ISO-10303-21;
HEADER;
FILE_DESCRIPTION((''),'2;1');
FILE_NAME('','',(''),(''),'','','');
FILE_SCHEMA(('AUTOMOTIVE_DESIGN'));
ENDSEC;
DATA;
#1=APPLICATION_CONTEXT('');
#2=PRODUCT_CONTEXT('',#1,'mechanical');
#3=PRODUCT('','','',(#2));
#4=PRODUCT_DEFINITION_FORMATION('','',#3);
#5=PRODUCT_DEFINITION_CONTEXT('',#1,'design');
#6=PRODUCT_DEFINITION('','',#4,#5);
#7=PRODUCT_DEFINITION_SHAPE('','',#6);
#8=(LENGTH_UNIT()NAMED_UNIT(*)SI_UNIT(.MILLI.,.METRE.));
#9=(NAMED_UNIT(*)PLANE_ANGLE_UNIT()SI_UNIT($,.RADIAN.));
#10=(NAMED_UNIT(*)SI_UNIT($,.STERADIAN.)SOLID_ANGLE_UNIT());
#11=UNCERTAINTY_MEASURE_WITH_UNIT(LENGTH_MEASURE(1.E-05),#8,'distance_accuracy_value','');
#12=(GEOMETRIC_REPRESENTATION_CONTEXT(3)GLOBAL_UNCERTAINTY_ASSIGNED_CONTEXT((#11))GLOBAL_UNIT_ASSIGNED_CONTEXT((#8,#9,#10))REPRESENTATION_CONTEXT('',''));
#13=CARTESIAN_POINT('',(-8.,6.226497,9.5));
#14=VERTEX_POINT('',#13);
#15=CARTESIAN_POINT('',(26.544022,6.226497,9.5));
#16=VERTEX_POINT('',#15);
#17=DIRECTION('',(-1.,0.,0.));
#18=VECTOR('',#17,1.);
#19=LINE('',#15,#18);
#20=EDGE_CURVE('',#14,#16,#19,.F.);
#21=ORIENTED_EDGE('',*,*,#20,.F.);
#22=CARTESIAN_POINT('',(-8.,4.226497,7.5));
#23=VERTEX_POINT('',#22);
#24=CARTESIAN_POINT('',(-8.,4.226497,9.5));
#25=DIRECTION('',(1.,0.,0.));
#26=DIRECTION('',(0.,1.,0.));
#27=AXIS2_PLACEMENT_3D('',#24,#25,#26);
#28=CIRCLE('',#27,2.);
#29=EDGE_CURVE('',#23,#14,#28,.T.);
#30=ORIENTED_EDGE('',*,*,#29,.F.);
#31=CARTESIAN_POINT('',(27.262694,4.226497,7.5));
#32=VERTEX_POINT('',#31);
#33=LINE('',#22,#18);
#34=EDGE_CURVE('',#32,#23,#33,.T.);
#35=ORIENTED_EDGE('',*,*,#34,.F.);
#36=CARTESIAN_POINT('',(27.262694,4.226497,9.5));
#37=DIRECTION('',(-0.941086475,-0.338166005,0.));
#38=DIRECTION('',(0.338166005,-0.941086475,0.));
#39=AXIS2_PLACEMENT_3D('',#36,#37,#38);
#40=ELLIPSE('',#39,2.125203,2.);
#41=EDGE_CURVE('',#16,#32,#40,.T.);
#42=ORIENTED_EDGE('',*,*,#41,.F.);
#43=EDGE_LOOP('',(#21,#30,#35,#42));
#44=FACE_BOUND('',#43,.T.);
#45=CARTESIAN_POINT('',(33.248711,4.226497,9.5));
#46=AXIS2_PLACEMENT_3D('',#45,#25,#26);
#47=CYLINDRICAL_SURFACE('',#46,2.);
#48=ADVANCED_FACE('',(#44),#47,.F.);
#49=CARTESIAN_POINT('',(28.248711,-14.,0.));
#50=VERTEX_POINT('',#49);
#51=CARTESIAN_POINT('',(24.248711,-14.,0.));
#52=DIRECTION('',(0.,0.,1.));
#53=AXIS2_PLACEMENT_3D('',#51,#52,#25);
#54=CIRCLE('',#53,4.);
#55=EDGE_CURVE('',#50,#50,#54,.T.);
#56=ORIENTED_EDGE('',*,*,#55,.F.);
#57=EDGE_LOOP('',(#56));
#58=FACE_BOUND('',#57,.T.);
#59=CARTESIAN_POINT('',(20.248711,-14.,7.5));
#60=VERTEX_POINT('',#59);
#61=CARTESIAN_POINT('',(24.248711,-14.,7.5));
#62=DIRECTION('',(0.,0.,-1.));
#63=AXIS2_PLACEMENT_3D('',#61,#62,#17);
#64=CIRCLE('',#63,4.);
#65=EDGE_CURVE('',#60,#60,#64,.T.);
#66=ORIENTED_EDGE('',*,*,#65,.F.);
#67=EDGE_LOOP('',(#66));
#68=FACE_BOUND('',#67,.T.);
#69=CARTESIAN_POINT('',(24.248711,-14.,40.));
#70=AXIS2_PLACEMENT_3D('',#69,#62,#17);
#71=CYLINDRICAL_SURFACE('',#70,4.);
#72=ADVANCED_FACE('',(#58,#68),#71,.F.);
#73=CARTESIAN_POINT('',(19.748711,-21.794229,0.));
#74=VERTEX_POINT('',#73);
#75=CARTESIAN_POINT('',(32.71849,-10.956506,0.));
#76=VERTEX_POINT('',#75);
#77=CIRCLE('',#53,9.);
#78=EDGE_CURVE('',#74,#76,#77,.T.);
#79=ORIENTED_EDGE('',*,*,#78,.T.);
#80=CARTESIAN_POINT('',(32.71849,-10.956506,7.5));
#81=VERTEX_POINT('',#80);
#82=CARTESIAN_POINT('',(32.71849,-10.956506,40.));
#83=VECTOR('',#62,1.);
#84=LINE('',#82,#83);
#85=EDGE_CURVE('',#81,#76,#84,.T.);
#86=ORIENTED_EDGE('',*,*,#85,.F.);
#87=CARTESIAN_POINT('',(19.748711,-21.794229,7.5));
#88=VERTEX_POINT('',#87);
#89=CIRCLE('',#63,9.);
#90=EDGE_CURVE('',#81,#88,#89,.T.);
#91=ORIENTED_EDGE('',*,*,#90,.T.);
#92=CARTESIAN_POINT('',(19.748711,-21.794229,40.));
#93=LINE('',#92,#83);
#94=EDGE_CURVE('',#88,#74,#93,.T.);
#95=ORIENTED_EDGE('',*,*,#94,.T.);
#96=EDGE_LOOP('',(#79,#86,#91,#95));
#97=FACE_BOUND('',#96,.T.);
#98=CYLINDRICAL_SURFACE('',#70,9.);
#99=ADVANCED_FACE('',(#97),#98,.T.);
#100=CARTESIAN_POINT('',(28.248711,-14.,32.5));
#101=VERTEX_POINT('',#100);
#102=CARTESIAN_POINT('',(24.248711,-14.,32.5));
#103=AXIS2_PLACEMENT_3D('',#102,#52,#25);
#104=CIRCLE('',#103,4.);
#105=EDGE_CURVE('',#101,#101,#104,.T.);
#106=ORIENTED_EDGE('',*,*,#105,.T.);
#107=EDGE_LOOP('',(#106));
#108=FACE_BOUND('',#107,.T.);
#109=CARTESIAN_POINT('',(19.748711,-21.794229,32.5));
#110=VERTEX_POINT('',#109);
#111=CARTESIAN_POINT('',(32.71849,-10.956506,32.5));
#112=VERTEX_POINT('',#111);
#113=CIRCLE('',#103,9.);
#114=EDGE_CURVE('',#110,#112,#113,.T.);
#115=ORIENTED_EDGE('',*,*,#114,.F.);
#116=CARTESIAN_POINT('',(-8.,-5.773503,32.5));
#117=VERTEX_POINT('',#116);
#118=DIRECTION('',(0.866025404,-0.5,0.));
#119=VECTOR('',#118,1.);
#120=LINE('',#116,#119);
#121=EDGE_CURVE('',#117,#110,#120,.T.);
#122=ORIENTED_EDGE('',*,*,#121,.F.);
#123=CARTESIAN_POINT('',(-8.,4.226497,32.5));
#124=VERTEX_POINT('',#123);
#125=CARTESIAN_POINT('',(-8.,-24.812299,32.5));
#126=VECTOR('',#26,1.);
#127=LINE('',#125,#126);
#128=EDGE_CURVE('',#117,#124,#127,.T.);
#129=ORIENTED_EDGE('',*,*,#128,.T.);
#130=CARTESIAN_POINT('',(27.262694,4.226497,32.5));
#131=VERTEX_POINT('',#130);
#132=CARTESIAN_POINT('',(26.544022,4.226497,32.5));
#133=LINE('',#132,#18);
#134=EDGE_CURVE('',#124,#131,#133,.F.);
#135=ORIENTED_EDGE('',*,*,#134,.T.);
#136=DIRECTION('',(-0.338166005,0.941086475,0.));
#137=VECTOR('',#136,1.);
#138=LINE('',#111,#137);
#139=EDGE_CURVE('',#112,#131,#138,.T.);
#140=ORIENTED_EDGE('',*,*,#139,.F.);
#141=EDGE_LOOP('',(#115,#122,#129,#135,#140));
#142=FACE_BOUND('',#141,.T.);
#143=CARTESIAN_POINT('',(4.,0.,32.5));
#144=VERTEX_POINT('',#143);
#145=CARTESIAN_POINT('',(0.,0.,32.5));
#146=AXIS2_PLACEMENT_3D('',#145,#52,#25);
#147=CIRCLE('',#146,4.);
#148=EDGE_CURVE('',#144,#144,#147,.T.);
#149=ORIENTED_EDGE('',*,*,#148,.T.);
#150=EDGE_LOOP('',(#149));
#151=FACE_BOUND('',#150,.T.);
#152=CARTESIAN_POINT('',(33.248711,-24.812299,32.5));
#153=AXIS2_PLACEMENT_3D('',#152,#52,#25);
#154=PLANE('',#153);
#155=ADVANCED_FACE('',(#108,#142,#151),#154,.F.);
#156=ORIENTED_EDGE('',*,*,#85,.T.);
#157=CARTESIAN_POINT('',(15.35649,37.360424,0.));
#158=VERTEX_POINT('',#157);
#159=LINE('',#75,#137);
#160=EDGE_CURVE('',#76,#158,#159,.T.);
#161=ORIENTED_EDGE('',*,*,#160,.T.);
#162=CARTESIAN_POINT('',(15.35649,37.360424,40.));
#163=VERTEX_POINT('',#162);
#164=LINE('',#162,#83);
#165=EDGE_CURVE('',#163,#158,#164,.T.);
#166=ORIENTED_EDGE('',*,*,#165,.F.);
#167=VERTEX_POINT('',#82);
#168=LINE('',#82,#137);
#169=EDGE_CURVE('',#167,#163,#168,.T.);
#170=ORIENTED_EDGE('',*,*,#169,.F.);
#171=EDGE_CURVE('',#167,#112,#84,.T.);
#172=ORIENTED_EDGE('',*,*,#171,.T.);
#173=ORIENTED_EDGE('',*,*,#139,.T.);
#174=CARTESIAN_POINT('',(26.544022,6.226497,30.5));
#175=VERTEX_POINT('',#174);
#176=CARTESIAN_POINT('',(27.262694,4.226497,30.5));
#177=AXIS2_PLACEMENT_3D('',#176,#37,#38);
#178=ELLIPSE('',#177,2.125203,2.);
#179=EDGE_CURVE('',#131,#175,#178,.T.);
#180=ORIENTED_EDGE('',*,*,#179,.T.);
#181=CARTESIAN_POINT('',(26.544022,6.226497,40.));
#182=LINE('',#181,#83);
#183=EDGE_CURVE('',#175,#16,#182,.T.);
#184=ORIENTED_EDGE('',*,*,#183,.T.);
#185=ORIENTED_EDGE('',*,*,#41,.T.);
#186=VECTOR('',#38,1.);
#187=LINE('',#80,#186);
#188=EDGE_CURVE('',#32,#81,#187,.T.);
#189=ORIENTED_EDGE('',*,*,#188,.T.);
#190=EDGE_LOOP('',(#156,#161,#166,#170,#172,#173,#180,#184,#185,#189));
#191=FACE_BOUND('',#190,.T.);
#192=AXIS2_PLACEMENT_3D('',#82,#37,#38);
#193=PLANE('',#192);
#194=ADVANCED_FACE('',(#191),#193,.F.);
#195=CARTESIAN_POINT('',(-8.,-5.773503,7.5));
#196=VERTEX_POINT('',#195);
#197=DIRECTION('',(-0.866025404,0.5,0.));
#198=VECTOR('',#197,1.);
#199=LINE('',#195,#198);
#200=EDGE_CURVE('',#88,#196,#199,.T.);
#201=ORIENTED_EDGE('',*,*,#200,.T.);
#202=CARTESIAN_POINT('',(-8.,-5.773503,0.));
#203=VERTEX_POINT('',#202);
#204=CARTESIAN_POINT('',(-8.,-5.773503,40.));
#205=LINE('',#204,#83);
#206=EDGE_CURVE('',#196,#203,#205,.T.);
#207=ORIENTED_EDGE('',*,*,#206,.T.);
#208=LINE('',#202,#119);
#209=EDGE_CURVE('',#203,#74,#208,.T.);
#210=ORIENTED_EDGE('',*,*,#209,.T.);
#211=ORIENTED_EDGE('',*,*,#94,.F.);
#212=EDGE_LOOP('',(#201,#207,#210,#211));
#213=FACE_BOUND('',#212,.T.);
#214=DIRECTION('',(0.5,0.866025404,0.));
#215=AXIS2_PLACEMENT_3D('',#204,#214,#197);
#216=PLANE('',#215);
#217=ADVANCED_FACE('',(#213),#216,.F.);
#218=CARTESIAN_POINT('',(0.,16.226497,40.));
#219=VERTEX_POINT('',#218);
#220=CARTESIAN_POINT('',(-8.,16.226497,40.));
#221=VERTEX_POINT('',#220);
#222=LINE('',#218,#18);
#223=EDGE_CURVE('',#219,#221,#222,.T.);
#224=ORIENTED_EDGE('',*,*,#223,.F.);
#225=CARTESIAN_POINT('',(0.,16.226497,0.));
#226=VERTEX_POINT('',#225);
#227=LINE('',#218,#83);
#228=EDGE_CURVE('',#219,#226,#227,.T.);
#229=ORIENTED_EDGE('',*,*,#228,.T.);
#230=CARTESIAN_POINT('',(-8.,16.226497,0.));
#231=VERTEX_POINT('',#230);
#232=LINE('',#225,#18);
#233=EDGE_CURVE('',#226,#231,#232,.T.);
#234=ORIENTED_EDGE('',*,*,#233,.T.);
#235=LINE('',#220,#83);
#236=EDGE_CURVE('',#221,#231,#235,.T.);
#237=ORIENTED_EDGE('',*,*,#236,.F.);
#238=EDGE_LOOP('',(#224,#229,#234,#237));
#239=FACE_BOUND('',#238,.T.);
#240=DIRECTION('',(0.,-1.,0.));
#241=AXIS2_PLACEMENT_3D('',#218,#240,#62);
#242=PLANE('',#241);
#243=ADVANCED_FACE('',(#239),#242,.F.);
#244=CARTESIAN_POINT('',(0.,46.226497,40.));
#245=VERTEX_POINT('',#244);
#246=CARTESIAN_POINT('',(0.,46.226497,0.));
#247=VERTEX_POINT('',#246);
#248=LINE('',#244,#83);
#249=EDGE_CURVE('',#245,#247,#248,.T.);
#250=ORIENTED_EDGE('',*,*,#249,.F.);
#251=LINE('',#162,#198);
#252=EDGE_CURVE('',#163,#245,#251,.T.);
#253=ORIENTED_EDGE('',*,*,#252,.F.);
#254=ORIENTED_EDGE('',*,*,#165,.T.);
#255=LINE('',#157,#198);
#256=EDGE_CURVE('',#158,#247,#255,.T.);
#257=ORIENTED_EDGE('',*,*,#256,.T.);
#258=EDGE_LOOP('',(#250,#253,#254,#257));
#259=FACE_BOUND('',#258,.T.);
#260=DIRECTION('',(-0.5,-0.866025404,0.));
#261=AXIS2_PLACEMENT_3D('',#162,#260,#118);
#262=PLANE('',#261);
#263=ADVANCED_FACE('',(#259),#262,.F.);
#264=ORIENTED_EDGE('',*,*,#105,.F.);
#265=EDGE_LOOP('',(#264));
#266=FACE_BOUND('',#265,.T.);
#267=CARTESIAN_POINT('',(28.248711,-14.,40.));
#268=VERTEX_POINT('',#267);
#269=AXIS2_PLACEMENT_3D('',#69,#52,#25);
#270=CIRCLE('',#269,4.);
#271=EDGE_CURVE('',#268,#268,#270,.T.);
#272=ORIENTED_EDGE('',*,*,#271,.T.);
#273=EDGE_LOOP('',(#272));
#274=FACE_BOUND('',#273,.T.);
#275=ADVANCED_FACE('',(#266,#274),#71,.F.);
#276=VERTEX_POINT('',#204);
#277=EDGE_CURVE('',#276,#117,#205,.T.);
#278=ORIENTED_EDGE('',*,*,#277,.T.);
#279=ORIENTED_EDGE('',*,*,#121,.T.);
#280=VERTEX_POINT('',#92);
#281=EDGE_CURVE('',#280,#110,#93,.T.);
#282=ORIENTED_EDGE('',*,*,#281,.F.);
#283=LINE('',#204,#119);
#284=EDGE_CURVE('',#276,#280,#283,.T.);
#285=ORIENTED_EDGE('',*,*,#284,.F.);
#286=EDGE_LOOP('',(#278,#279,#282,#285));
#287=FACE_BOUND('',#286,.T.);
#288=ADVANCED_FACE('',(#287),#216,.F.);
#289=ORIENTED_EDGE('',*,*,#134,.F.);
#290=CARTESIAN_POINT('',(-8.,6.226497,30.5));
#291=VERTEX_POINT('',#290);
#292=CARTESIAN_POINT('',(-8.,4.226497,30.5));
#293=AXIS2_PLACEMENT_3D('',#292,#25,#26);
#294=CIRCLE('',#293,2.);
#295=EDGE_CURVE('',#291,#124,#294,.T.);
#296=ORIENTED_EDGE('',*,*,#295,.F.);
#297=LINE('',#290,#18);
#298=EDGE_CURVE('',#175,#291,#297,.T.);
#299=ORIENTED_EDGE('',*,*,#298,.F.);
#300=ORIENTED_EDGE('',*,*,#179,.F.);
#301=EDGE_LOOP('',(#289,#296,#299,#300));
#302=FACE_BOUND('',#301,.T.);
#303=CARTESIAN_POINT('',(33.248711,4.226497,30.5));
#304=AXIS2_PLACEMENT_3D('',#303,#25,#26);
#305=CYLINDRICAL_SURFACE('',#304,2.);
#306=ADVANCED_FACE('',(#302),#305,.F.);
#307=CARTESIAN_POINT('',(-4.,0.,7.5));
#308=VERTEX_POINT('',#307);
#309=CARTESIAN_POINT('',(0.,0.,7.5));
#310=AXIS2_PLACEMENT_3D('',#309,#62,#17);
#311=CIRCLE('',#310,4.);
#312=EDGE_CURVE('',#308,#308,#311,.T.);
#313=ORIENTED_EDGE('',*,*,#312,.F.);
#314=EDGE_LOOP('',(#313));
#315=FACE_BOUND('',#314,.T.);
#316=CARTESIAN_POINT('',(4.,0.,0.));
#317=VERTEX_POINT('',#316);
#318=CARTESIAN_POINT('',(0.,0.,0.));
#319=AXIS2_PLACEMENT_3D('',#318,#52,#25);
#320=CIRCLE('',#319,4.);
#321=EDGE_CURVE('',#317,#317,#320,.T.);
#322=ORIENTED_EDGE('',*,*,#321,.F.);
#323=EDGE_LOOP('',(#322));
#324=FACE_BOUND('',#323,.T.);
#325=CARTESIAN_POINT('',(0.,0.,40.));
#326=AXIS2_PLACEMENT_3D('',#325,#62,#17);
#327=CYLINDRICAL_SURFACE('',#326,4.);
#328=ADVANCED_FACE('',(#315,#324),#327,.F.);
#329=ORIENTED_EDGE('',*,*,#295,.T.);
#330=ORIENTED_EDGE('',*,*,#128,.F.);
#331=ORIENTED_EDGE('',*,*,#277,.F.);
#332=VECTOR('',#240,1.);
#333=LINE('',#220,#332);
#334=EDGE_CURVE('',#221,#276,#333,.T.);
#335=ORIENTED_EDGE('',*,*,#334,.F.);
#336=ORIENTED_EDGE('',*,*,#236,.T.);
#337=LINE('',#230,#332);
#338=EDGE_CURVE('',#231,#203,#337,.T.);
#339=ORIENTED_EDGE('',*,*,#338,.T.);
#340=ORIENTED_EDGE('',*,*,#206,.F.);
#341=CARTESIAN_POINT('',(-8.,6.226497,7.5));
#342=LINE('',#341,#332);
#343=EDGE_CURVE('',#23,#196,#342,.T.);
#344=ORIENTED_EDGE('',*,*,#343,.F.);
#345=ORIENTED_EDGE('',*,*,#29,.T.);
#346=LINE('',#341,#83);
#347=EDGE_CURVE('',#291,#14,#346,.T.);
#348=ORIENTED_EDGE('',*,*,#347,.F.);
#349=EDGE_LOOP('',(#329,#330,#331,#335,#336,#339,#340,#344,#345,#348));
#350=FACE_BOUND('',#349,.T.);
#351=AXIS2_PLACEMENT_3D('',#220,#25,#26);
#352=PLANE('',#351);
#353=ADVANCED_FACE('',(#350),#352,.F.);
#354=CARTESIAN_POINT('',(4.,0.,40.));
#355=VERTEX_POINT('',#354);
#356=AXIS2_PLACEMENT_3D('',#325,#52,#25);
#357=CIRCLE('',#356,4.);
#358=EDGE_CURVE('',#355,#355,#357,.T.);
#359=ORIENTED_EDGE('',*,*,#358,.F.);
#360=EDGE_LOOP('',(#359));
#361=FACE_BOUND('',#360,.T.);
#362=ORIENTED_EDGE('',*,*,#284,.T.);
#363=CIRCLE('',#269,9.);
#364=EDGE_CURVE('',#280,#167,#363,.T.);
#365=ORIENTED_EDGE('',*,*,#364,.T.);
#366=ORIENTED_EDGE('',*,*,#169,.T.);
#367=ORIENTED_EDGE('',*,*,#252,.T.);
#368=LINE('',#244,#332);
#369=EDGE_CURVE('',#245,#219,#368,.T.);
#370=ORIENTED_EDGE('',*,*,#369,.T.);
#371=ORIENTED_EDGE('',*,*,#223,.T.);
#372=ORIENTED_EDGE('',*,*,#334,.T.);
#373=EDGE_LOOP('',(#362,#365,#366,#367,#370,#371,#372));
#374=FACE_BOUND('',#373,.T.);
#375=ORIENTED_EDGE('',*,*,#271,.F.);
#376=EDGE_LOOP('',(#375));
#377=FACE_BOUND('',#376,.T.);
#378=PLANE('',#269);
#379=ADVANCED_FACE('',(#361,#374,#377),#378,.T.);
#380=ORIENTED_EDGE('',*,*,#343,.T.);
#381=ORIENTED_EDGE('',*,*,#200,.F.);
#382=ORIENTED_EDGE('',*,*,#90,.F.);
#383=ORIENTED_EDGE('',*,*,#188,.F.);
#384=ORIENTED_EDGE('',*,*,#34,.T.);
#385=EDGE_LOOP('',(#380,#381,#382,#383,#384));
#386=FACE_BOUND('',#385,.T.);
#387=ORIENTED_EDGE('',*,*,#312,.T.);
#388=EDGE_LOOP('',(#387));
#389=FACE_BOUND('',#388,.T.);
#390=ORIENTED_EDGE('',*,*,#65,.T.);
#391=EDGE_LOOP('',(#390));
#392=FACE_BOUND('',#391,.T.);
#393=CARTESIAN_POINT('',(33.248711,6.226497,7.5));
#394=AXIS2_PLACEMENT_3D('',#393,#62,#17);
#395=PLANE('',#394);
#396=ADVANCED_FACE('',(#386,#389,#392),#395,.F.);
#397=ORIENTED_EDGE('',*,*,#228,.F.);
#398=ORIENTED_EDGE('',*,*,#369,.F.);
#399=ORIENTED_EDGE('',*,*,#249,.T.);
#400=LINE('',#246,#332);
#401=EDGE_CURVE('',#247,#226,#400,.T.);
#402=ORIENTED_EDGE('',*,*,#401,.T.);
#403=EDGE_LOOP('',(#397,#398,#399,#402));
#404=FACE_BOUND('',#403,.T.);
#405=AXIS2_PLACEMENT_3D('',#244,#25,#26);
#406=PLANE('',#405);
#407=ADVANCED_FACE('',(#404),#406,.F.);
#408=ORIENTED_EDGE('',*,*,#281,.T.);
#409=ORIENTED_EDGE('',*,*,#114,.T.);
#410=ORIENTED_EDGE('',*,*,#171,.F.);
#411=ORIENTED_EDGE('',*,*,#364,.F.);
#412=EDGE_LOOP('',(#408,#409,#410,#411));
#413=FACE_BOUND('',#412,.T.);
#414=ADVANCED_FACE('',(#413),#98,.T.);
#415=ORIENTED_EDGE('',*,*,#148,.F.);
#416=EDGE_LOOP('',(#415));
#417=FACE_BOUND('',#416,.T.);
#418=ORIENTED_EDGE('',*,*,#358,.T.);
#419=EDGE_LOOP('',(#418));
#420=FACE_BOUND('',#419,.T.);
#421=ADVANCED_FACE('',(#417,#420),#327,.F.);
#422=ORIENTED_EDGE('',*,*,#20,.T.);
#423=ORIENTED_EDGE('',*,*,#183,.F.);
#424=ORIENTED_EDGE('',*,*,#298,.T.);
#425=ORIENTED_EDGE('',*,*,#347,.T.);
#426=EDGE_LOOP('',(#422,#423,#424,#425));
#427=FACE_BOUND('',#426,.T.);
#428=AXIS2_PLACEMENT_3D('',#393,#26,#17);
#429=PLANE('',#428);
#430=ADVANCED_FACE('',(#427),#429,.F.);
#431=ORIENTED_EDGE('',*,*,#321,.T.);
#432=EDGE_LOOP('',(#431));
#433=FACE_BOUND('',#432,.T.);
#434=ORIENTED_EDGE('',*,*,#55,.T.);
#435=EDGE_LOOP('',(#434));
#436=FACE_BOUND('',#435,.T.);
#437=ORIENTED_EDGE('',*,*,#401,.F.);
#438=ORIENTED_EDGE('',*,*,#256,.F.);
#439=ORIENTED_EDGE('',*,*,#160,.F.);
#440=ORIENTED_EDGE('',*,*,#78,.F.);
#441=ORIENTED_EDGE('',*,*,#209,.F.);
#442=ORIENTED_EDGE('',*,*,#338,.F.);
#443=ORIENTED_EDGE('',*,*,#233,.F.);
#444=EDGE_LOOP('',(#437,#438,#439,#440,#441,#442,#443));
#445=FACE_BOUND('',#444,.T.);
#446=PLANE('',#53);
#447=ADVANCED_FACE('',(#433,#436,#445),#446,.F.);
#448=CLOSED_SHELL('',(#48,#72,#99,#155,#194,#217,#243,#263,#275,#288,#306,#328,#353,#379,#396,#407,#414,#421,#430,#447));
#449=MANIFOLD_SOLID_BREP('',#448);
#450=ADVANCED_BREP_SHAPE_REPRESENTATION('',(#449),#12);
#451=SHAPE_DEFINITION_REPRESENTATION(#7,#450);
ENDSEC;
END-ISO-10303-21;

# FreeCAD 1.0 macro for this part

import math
import FreeCAD as App
import Part
import Sketcher

V = App.Vector
Q = App.Units.Quantity


def edges_at(feature, points):
    """Names of the edges that pass closest to the given points."""
    edges = feature.Shape.Edges
    near = lambda p: min(range(len(edges)), key=lambda i: edges[i].distToShape(Part.Vertex(*p))[0])
    return sorted({f"Edge{near(p) + 1}" for p in points})

doc = App.newDocument("Part")
body = doc.addObject("PartDesign::Body", "Body")

# Sketch on XY plane
sketch1 = body.newObject("Sketcher::SketchObject", "Sketch")
sketch1.AttachmentSupport = (doc.getObject("XY_Plane"), [""])
sketch1.MapMode = "FlatFace"
sketch1.addGeometry([
    Part.LineSegment(V(0, 46.2, 0), V(0, 16.2, 0)),  # 0
    Part.LineSegment(V(0, 16.2, 0), V(-8, 16.2, 0)),  # 1
    Part.LineSegment(V(-8, 16.2, 0), V(-8, -5.8, 0)),  # 2
    Part.LineSegment(V(-8, -5.8, 0), V(19.7, -21.8, 0)),  # 3
    Part.ArcOfCircle(Part.Circle(V(24.2, -14, 0), V(0, 0, 1), 9), math.radians(-120), math.radians(20)),  # 4
    Part.LineSegment(V(32.7, -11, 0), V(15.4, 37.4, 0)),  # 5
    Part.LineSegment(V(15.4, 37.4, 0), V(0, 46.2, 0)),  # 6
    Part.Circle(V(24.2, -14, 0), V(0, 0, 1), 4),  # 7
    Part.Circle(V(0, 0, 0), V(0, 0, 1), 4),  # 8
], False)
sketch1.addConstraint([
    Sketcher.Constraint("Coincident", 0, 2, 1, 1),
    Sketcher.Constraint("Coincident", 1, 2, 2, 1),
    Sketcher.Constraint("Coincident", 2, 2, 3, 1),
    Sketcher.Constraint("Tangent", 3, 2, 4, 1),
    Sketcher.Constraint("Tangent", 4, 2, 5, 1),
    Sketcher.Constraint("Coincident", 5, 2, 6, 1),
    Sketcher.Constraint("Coincident", 6, 2, 0, 1),
    Sketcher.Constraint("Vertical", 0),
    Sketcher.Constraint("Horizontal", 1),
    Sketcher.Constraint("Vertical", 2),
    Sketcher.Constraint("Coincident", 8, 3, -1, 1),
    Sketcher.Constraint("Coincident", 7, 3, 4, 3),
    Sketcher.Constraint("Equal", 7, 8),
    Sketcher.Constraint("PointOnObject", 0, 2, -2),
    Sketcher.Constraint("Parallel", 3, 6),
    Sketcher.Constraint("Diameter", 7, Q("8 mm")),
    Sketcher.Constraint("Radius", 4, Q("9 mm")),
    Sketcher.Constraint("DistanceX", 1, 2, 1, 1, Q("8 mm")),
    Sketcher.Constraint("DistanceY", 0, 2, 0, 1, Q("30 mm")),
    Sketcher.Constraint("DistanceY", 2, 2, 2, 1, Q("22 mm")),
    Sketcher.Constraint("Angle", 3, Q("-30 deg")),
    Sketcher.Constraint("DistanceY", 4, 3, -1, 1, Q("14 mm")),
    Sketcher.Constraint("DistanceX", 5, 2, 4, 2, Q("17.362 mm")),
    Sketcher.Constraint("Distance", 3, Q("32.041452 mm")),
])
pad1 = body.newObject("PartDesign::Pad", "Pad")
pad1.Profile = sketch1
pad1.Length = 40

# Sketch on YZ plane
sketch2 = body.newObject("Sketcher::SketchObject", "Sketch001")
sketch2.AttachmentSupport = (doc.getObject("YZ_Plane"), [""])
sketch2.MapMode = "FlatFace"
sketch2.AttachmentOffset = App.Placement(V(0, 0, -8), App.Rotation())
sketch2.addGeometry([
    Part.LineSegment(V(6, 8, 0), V(-25, 8, 0)),
    Part.LineSegment(V(-25, 8, 0), V(-25, 32, 0)),
    Part.LineSegment(V(-25, 32, 0), V(6, 32, 0)),
    Part.LineSegment(V(6, 32, 0), V(6, 8, 0)),
], False)
sketch2.addConstraint([
    Sketcher.Constraint("Coincident", 0, 2, 1, 1),
    Sketcher.Constraint("Coincident", 1, 2, 2, 1),
    Sketcher.Constraint("Coincident", 2, 2, 3, 1),
    Sketcher.Constraint("Coincident", 3, 2, 0, 1),
    Sketcher.Constraint("Horizontal", 0),
    Sketcher.Constraint("Vertical", 1),
    Sketcher.Constraint("Horizontal", 2),
    Sketcher.Constraint("Vertical", 3),
    Sketcher.Constraint("DistanceY", 1, 1, 1, 2, Q("25 mm")),
    Sketcher.Constraint("DistanceY", -1, 1, 0, 2, Q("7.5 mm")),
    Sketcher.Constraint("DistanceX", 0, 2, -1, 1, Q("24.812299 mm")),
    Sketcher.Constraint("DistanceX", 0, 2, 0, 1, Q("31.038796 mm")),
])
pocket1 = body.newObject("PartDesign::Pocket", "Pocket")
pocket1.Profile = sketch2
pocket1.Type = "ThroughAll"
pocket1.Reversed = True
doc.recompute()

fillet = body.newObject("PartDesign::Fillet", "Fillet")
fillet.Base = (pocket1, edges_at(pocket1, [(9.272, 6.226, 7.5), (9.272, 6.226, 32.5)]))
fillet.Radius = 2

doc.recompute()
